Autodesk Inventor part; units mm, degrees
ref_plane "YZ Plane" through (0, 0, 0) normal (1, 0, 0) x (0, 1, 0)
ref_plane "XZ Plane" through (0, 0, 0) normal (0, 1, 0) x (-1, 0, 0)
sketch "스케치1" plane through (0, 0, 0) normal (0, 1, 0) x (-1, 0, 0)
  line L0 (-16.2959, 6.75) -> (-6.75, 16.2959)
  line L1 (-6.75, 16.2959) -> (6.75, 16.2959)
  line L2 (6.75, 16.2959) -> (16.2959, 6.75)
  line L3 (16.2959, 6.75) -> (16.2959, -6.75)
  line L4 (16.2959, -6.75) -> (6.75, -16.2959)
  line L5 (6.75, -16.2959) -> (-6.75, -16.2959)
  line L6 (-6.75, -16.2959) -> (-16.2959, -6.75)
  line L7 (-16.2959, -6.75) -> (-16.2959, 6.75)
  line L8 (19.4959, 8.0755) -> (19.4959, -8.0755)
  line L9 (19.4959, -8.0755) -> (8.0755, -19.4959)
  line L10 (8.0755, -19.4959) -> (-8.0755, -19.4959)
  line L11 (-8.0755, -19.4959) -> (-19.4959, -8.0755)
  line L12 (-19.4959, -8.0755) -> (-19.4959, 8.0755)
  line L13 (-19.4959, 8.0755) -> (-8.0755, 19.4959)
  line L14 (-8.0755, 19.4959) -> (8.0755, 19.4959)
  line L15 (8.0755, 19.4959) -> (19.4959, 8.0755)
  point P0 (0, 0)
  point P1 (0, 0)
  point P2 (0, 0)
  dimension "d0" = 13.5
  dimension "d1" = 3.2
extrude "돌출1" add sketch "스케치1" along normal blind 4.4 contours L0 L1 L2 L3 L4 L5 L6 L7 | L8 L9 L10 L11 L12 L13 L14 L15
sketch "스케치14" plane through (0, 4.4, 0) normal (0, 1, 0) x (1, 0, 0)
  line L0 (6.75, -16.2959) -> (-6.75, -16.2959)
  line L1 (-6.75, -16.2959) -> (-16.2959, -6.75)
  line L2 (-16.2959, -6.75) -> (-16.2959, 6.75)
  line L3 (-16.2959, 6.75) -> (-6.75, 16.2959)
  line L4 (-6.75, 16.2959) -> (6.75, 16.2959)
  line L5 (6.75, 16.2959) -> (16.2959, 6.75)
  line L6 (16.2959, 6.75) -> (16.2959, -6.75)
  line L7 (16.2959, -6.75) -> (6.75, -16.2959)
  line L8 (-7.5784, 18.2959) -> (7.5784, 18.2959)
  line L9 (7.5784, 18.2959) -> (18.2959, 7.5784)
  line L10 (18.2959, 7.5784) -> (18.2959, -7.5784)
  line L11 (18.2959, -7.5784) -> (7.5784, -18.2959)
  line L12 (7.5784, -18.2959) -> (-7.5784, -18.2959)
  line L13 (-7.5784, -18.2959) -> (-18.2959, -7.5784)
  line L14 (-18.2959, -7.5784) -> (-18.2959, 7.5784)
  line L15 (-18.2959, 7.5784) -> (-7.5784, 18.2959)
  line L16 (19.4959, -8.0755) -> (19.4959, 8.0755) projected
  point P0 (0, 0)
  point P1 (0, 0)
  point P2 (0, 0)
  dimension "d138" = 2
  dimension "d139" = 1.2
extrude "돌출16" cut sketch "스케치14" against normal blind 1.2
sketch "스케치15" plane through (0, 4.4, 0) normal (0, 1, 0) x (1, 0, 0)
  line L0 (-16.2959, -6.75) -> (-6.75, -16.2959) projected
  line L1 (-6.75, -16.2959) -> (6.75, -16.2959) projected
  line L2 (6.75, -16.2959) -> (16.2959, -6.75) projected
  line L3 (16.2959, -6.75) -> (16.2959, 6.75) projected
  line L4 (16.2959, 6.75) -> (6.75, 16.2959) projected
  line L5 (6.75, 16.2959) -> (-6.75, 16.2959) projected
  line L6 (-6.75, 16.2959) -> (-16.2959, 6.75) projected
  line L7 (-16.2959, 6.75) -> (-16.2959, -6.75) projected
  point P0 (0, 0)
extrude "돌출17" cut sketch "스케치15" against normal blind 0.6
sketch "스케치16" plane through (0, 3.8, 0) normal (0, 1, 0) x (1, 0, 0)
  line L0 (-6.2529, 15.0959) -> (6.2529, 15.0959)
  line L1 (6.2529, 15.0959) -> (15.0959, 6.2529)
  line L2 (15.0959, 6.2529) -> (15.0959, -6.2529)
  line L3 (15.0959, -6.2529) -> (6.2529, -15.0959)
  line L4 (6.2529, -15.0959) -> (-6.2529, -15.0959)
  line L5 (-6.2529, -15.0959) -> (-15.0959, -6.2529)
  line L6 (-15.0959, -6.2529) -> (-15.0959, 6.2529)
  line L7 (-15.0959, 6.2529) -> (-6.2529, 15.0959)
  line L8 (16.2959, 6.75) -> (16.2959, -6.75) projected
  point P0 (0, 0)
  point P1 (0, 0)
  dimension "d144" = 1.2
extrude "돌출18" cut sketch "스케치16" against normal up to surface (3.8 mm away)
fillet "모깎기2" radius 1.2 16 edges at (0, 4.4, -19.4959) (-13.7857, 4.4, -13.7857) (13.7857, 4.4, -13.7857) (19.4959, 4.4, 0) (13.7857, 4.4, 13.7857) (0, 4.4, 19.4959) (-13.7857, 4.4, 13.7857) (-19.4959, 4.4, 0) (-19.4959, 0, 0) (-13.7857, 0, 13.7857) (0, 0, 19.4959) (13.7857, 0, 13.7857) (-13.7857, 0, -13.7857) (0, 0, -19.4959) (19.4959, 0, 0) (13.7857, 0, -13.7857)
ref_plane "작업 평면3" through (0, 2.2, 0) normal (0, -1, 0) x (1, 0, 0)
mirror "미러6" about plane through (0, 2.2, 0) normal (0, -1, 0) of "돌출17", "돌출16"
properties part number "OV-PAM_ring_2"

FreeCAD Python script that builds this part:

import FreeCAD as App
import Part
import Sketcher

V = App.Vector
Q = App.Units.Quantity


def edges_at(feature, points):
    """Names of the edges that pass closest to the given points."""
    edges = feature.Shape.Edges
    near = lambda p: min(range(len(edges)), key=lambda i: edges[i].distToShape(Part.Vertex(*p))[0])
    return sorted({f"Edge{near(p) + 1}" for p in points})

doc = App.newDocument("Part")
params = doc.addObject("Spreadsheet::Sheet", "Params")
for row, (alias, value) in enumerate([
    ("pad1_length", "4.4 mm"),
    ("sketch2_width", "13.5 mm"),
    ("sketch2_length", "13.5 mm"),
    ("pocket1_length", "1.2 mm"),
    ("sketch3_width", "13.5 mm"),
    ("sketch3_length", "13.5 mm"),
    ("pocket2_length", "0.6 mm"),
    ("pocket3_length", "3.8 mm"),
    ("fillet_radius", "1.2 mm"),
], start=1):
    params.set(f"A{row}", alias)
    params.set(f"B{row}", "=" + value)
    params.setAlias(f"B{row}", alias)

body = doc.addObject("PartDesign::Body", "Body")

# Sketch on XZ plane
sketch1 = doc.addObject("Sketcher::SketchObject", "Sketch")
body.addObject(sketch1)
sketch1.AttachmentSupport = (doc.XZ_Plane, [""])
sketch1.MapMode = "FlatFace"
sketch1.addGeometry(Part.LineSegment(V(-19, -8, 0), V(-19, 8, 0)), False)
sketch1.addGeometry(Part.LineSegment(V(-19, 8, 0), V(-8, 19, 0)), False)
sketch1.addGeometry(Part.LineSegment(V(-8, 19, 0), V(8, 19, 0)), False)
sketch1.addGeometry(Part.LineSegment(V(8, 19, 0), V(19, 8, 0)), False)
sketch1.addGeometry(Part.LineSegment(V(19, 8, 0), V(19, -8, 0)), False)
sketch1.addGeometry(Part.LineSegment(V(19, -8, 0), V(8, -19, 0)), False)
sketch1.addGeometry(Part.LineSegment(V(8, -19, 0), V(-8, -19, 0)), False)
sketch1.addGeometry(Part.LineSegment(V(-8, -19, 0), V(-19, -8, 0)), False)
sketch1.addConstraint(Sketcher.Constraint("Coincident", 0, 2, 1, 1))
sketch1.addConstraint(Sketcher.Constraint("Coincident", 1, 2, 2, 1))
sketch1.addConstraint(Sketcher.Constraint("Coincident", 2, 2, 3, 1))
sketch1.addConstraint(Sketcher.Constraint("Coincident", 3, 2, 4, 1))
sketch1.addConstraint(Sketcher.Constraint("Coincident", 4, 2, 5, 1))
sketch1.addConstraint(Sketcher.Constraint("Coincident", 5, 2, 6, 1))
sketch1.addConstraint(Sketcher.Constraint("Coincident", 6, 2, 7, 1))
sketch1.addConstraint(Sketcher.Constraint("Coincident", 7, 2, 0, 1))
sketch1.addConstraint(Sketcher.Constraint("Vertical", 0))
sketch1.addConstraint(Sketcher.Constraint("Horizontal", 2))
sketch1.addConstraint(Sketcher.Constraint("Vertical", 4))
sketch1.addConstraint(Sketcher.Constraint("Horizontal", 6))
sketch1.addConstraint(Sketcher.Constraint("Symmetric", 0, 2, 4, 2, -1, 1))
sketch1.addConstraint(Sketcher.Constraint("Symmetric", 1, 2, 5, 2, -1, 1))
sketch1.addConstraint(Sketcher.Constraint("Perpendicular", 1, 3))
sketch1.addConstraint(Sketcher.Constraint("Perpendicular", 5, 7))
sketch1.addConstraint(Sketcher.Constraint("Horizontal", 0, 2, 3, 2))
sketch1.addConstraint(Sketcher.Constraint("Horizontal", 4, 2, 7, 2))
sketch1.addConstraint(Sketcher.Constraint("Vertical", 2, 2, 5, 2))
sketch1.addConstraint(Sketcher.Constraint("Equal", 6, 0))
sketch1.addConstraint(Sketcher.Constraint("DistanceX", 2, 1, 2, 2, Q("16.151 mm")))
sketch1.addConstraint(Sketcher.Constraint("Distance", 1, Q("16.151 mm")))
pad1 = doc.addObject("PartDesign::Pad", "Pad")
body.addObject(pad1)
pad1.Profile = sketch1
pad1.setExpression("Length", "Params.pad1_length")
pad1.Reversed = True

# Sketch on XZ plane
sketch2 = doc.addObject("Sketcher::SketchObject", "Sketch001")
body.addObject(sketch2)
sketch2.AttachmentSupport = (doc.XZ_Plane, [""])
sketch2.MapMode = "FlatFace"
sketch2.AttachmentOffset = App.Placement(V(0, 0, -4.4), App.Rotation())
sketch2.addGeometry(Part.LineSegment(V(8, -18, 0), V(-8, -18, 0)), False)
sketch2.addGeometry(Part.LineSegment(V(-8, -18, 0), V(-18, -8, 0)), False)
sketch2.addGeometry(Part.LineSegment(V(-18, -8, 0), V(-18, 8, 0)), False)
sketch2.addGeometry(Part.LineSegment(V(-18, 8, 0), V(-8, 18, 0)), False)
sketch2.addGeometry(Part.LineSegment(V(-8, 18, 0), V(8, 18, 0)), False)
sketch2.addGeometry(Part.LineSegment(V(8, 18, 0), V(18, 8, 0)), False)
sketch2.addGeometry(Part.LineSegment(V(18, 8, 0), V(18, -8, 0)), False)
sketch2.addGeometry(Part.LineSegment(V(18, -8, 0), V(8, -18, 0)), False)
sketch2.addGeometry(Part.LineSegment(V(16, 7, 0), V(7, 16, 0)), False)
sketch2.addGeometry(Part.LineSegment(V(7, 16, 0), V(-7, 16, 0)), False)
sketch2.addGeometry(Part.LineSegment(V(-7, 16, 0), V(-16, 7, 0)), False)
sketch2.addGeometry(Part.LineSegment(V(-16, 7, 0), V(-16, -7, 0)), False)
sketch2.addGeometry(Part.LineSegment(V(-16, -7, 0), V(-7, -16, 0)), False)
sketch2.addGeometry(Part.LineSegment(V(-7, -16, 0), V(7, -16, 0)), False)
sketch2.addGeometry(Part.LineSegment(V(7, -16, 0), V(16, -7, 0)), False)
sketch2.addGeometry(Part.LineSegment(V(16, -7, 0), V(16, 7, 0)), False)
sketch2.addConstraint(Sketcher.Constraint("Coincident", 0, 2, 1, 1))
sketch2.addConstraint(Sketcher.Constraint("Coincident", 1, 2, 2, 1))
sketch2.addConstraint(Sketcher.Constraint("Coincident", 2, 2, 3, 1))
sketch2.addConstraint(Sketcher.Constraint("Coincident", 3, 2, 4, 1))
sketch2.addConstraint(Sketcher.Constraint("Coincident", 4, 2, 5, 1))
sketch2.addConstraint(Sketcher.Constraint("Coincident", 5, 2, 6, 1))
sketch2.addConstraint(Sketcher.Constraint("Coincident", 6, 2, 7, 1))
sketch2.addConstraint(Sketcher.Constraint("Coincident", 7, 2, 0, 1))
sketch2.addConstraint(Sketcher.Constraint("Coincident", 8, 2, 9, 1))
sketch2.addConstraint(Sketcher.Constraint("Coincident", 9, 2, 10, 1))
sketch2.addConstraint(Sketcher.Constraint("Coincident", 10, 2, 11, 1))
sketch2.addConstraint(Sketcher.Constraint("Coincident", 11, 2, 12, 1))
sketch2.addConstraint(Sketcher.Constraint("Coincident", 12, 2, 13, 1))
sketch2.addConstraint(Sketcher.Constraint("Coincident", 13, 2, 14, 1))
sketch2.addConstraint(Sketcher.Constraint("Coincident", 14, 2, 15, 1))
sketch2.addConstraint(Sketcher.Constraint("Coincident", 15, 2, 8, 1))
sketch2.addConstraint(Sketcher.Constraint("Horizontal", 0))
sketch2.addConstraint(Sketcher.Constraint("Vertical", 2))
sketch2.addConstraint(Sketcher.Constraint("Horizontal", 4))
sketch2.addConstraint(Sketcher.Constraint("Vertical", 6))
sketch2.addConstraint(Sketcher.Constraint("Horizontal", 9))
sketch2.addConstraint(Sketcher.Constraint("Vertical", 11))
sketch2.addConstraint(Sketcher.Constraint("Horizontal", 13))
sketch2.addConstraint(Sketcher.Constraint("Vertical", 15))
sketch2.addConstraint(Sketcher.Constraint("Symmetric", 0, 2, 4, 2, -1, 1))
sketch2.addConstraint(Sketcher.Constraint("Symmetric", 1, 2, 5, 2, -1, 1))
sketch2.addConstraint(Sketcher.Constraint("Symmetric", 8, 2, 12, 2, -1, 1))
sketch2.addConstraint(Sketcher.Constraint("Symmetric", 10, 2, 14, 2, -1, 1))
sketch2.addConstraint(Sketcher.Constraint("Perpendicular", 1, 3))
sketch2.addConstraint(Sketcher.Constraint("Perpendicular", 5, 7))
sketch2.addConstraint(Sketcher.Constraint("Perpendicular", 7, 8))
sketch2.addConstraint(Sketcher.Constraint("Perpendicular", 8, 10))
sketch2.addConstraint(Sketcher.Constraint("Perpendicular", 10, 12))
sketch2.addConstraint(Sketcher.Constraint("Perpendicular", 12, 14))
sketch2.addConstraint(Sketcher.Constraint("Horizontal", 2, 2, 5, 2))
sketch2.addConstraint(Sketcher.Constraint("Horizontal", 1, 2, 6, 2))
sketch2.addConstraint(Sketcher.Constraint("Horizontal", 11, 2, 14, 2))
sketch2.addConstraint(Sketcher.Constraint("Vertical", 0, 2, 3, 2))
sketch2.addConstraint(Sketcher.Constraint("Equal", 4, 2))
sketch2.addConstraint(Sketcher.Constraint("Equal", 13, 11))
sketch2.addConstraint(Sketcher.Constraint("DistanceY", 8, 2, 4, 2, Q("2 mm")))
sketch2.addConstraint(Sketcher.Constraint("DistanceX", 9, 2, 9, 1, Q("13.5 mm")))
sketch2.addConstraint(Sketcher.Constraint("Distance", 8, Q("13.5 mm")))
sketch2.addConstraint(Sketcher.Constraint("DistanceX", 0, 2, 0, 1, Q("15.1568 mm")))
sketch2.setExpression("Constraints[41]", "Params.sketch2_width")
sketch2.setExpression("Constraints[42]", "Params.sketch2_length")
pocket1 = doc.addObject("PartDesign::Pocket", "Pocket")
body.addObject(pocket1)
pocket1.Profile = sketch2
pocket1.setExpression("Length", "Params.pocket1_length")
pocket1.Reversed = True

# Sketch on XZ plane
sketch3 = doc.addObject("Sketcher::SketchObject", "Sketch002")
body.addObject(sketch3)
sketch3.AttachmentSupport = (doc.XZ_Plane, [""])
sketch3.MapMode = "FlatFace"
sketch3.AttachmentOffset = App.Placement(V(0, 0, -4.4), App.Rotation())
sketch3.addGeometry(Part.LineSegment(V(-16, -7, 0), V(-16, 7, 0)), False)
sketch3.addGeometry(Part.LineSegment(V(-16, 7, 0), V(-7, 16, 0)), False)
sketch3.addGeometry(Part.LineSegment(V(-7, 16, 0), V(7, 16, 0)), False)
sketch3.addGeometry(Part.LineSegment(V(7, 16, 0), V(16, 7, 0)), False)
sketch3.addGeometry(Part.LineSegment(V(16, 7, 0), V(16, -7, 0)), False)
sketch3.addGeometry(Part.LineSegment(V(16, -7, 0), V(7, -16, 0)), False)
sketch3.addGeometry(Part.LineSegment(V(7, -16, 0), V(-7, -16, 0)), False)
sketch3.addGeometry(Part.LineSegment(V(-7, -16, 0), V(-16, -7, 0)), False)
sketch3.addConstraint(Sketcher.Constraint("Coincident", 0, 2, 1, 1))
sketch3.addConstraint(Sketcher.Constraint("Coincident", 1, 2, 2, 1))
sketch3.addConstraint(Sketcher.Constraint("Coincident", 2, 2, 3, 1))
sketch3.addConstraint(Sketcher.Constraint("Coincident", 3, 2, 4, 1))
sketch3.addConstraint(Sketcher.Constraint("Coincident", 4, 2, 5, 1))
sketch3.addConstraint(Sketcher.Constraint("Coincident", 5, 2, 6, 1))
sketch3.addConstraint(Sketcher.Constraint("Coincident", 6, 2, 7, 1))
sketch3.addConstraint(Sketcher.Constraint("Coincident", 7, 2, 0, 1))
sketch3.addConstraint(Sketcher.Constraint("Vertical", 0))
sketch3.addConstraint(Sketcher.Constraint("Horizontal", 2))
sketch3.addConstraint(Sketcher.Constraint("Vertical", 4))
sketch3.addConstraint(Sketcher.Constraint("Horizontal", 6))
sketch3.addConstraint(Sketcher.Constraint("Symmetric", 0, 2, 4, 2, -1, 1))
sketch3.addConstraint(Sketcher.Constraint("Symmetric", 1, 2, 5, 2, -1, 1))
sketch3.addConstraint(Sketcher.Constraint("Perpendicular", 1, 3))
sketch3.addConstraint(Sketcher.Constraint("Perpendicular", 5, 7))
sketch3.addConstraint(Sketcher.Constraint("Horizontal", 0, 2, 3, 2))
sketch3.addConstraint(Sketcher.Constraint("Horizontal", 4, 2, 7, 2))
sketch3.addConstraint(Sketcher.Constraint("Vertical", 2, 2, 5, 2))
sketch3.addConstraint(Sketcher.Constraint("Equal", 6, 0))
sketch3.addConstraint(Sketcher.Constraint("DistanceX", 2, 1, 2, 2, Q("13.5 mm")))
sketch3.addConstraint(Sketcher.Constraint("Distance", 1, Q("13.5 mm")))
sketch3.setExpression("Constraints[20]", "Params.sketch3_width")
sketch3.setExpression("Constraints[21]", "Params.sketch3_length")
pocket2 = doc.addObject("PartDesign::Pocket", "Pocket001")
body.addObject(pocket2)
pocket2.Profile = sketch3
pocket2.setExpression("Length", "Params.pocket2_length")
pocket2.Reversed = True

# Sketch on XZ plane
sketch4 = doc.addObject("Sketcher::SketchObject", "Sketch003")
body.addObject(sketch4)
sketch4.AttachmentSupport = (doc.XZ_Plane, [""])
sketch4.MapMode = "FlatFace"
sketch4.AttachmentOffset = App.Placement(V(0, 0, -3.8), App.Rotation())
sketch4.addGeometry(Part.LineSegment(V(6, -15, 0), V(-6, -15, 0)), False)
sketch4.addGeometry(Part.LineSegment(V(-6, -15, 0), V(-15, -6, 0)), False)
sketch4.addGeometry(Part.LineSegment(V(-15, -6, 0), V(-15, 6, 0)), False)
sketch4.addGeometry(Part.LineSegment(V(-15, 6, 0), V(-6, 15, 0)), False)
sketch4.addGeometry(Part.LineSegment(V(-6, 15, 0), V(6, 15, 0)), False)
sketch4.addGeometry(Part.LineSegment(V(6, 15, 0), V(15, 6, 0)), False)
sketch4.addGeometry(Part.LineSegment(V(15, 6, 0), V(15, -6, 0)), False)
sketch4.addGeometry(Part.LineSegment(V(15, -6, 0), V(6, -15, 0)), False)
sketch4.addConstraint(Sketcher.Constraint("Coincident", 0, 2, 1, 1))
sketch4.addConstraint(Sketcher.Constraint("Coincident", 1, 2, 2, 1))
sketch4.addConstraint(Sketcher.Constraint("Coincident", 2, 2, 3, 1))
sketch4.addConstraint(Sketcher.Constraint("Coincident", 3, 2, 4, 1))
sketch4.addConstraint(Sketcher.Constraint("Coincident", 4, 2, 5, 1))
sketch4.addConstraint(Sketcher.Constraint("Coincident", 5, 2, 6, 1))
sketch4.addConstraint(Sketcher.Constraint("Coincident", 6, 2, 7, 1))
sketch4.addConstraint(Sketcher.Constraint("Coincident", 7, 2, 0, 1))
sketch4.addConstraint(Sketcher.Constraint("Horizontal", 0))
sketch4.addConstraint(Sketcher.Constraint("Vertical", 2))
sketch4.addConstraint(Sketcher.Constraint("Horizontal", 4))
sketch4.addConstraint(Sketcher.Constraint("Vertical", 6))
sketch4.addConstraint(Sketcher.Constraint("Symmetric", 0, 2, 4, 2, -1, 1))
sketch4.addConstraint(Sketcher.Constraint("Symmetric", 1, 2, 5, 2, -1, 1))
sketch4.addConstraint(Sketcher.Constraint("Perpendicular", 1, 3))
sketch4.addConstraint(Sketcher.Constraint("Perpendicular", 5, 7))
sketch4.addConstraint(Sketcher.Constraint("Horizontal", 2, 2, 5, 2))
sketch4.addConstraint(Sketcher.Constraint("Horizontal", 1, 2, 6, 2))
sketch4.addConstraint(Sketcher.Constraint("Vertical", 0, 2, 3, 2))
sketch4.addConstraint(Sketcher.Constraint("Equal", 4, 2))
sketch4.addConstraint(Sketcher.Constraint("Distance", 1, Q("12.506 mm")))
sketch4.addConstraint(Sketcher.Constraint("DistanceX", 0, 2, 0, 1, Q("12.5058 mm")))
pocket3 = doc.addObject("PartDesign::Pocket", "Pocket002")
body.addObject(pocket3)
pocket3.Profile = sketch4
pocket3.setExpression("Length", "Params.pocket3_length")
pocket3.Reversed = True
doc.recompute()

fillet = doc.addObject("PartDesign::Fillet", "Fillet")
body.addObject(fillet)
fillet.Base = (pocket3, edges_at(pocket3, [
    (0, 4.4, -19.496),
    (-13.786, 4.4, -13.786),
    (13.786, 4.4, -13.786),
    (19.496, 4.4, 0),
    (13.786, 4.4, 13.786),
    (0, 4.4, 19.496),
    (-13.786, 4.4, 13.786),
    (-19.496, 4.4, 0),
    (-19.496, 0, 0),
    (-13.786, 0, 13.786),
    (0, 0, 19.496),
    (13.786, 0, 13.786),
    (-13.786, 0, -13.786),
    (0, 0, -19.496),
    (19.496, 0, 0),
    (13.786, 0, -13.786),
]))
fillet.setExpression("Radius", "Params.fillet_radius")
doc.recompute()

datumplane = doc.addObject("PartDesign::Plane", "DatumPlane")
body.addObject(datumplane)
datumplane.AttachmentSupport = (doc.XZ_Plane, [""])
datumplane.MapMode = "FlatFace"
datumplane.AttachmentOffset = App.Placement(V(0, 0, -2.2), App.Rotation())
mirrored = doc.addObject("PartDesign::Mirrored", "Mirrored")
body.addObject(mirrored)
mirrored.Originals = [pocket2, pocket1]
mirrored.MirrorPlane = (datumplane, [""])
body.Tip = mirrored

doc.recompute()
